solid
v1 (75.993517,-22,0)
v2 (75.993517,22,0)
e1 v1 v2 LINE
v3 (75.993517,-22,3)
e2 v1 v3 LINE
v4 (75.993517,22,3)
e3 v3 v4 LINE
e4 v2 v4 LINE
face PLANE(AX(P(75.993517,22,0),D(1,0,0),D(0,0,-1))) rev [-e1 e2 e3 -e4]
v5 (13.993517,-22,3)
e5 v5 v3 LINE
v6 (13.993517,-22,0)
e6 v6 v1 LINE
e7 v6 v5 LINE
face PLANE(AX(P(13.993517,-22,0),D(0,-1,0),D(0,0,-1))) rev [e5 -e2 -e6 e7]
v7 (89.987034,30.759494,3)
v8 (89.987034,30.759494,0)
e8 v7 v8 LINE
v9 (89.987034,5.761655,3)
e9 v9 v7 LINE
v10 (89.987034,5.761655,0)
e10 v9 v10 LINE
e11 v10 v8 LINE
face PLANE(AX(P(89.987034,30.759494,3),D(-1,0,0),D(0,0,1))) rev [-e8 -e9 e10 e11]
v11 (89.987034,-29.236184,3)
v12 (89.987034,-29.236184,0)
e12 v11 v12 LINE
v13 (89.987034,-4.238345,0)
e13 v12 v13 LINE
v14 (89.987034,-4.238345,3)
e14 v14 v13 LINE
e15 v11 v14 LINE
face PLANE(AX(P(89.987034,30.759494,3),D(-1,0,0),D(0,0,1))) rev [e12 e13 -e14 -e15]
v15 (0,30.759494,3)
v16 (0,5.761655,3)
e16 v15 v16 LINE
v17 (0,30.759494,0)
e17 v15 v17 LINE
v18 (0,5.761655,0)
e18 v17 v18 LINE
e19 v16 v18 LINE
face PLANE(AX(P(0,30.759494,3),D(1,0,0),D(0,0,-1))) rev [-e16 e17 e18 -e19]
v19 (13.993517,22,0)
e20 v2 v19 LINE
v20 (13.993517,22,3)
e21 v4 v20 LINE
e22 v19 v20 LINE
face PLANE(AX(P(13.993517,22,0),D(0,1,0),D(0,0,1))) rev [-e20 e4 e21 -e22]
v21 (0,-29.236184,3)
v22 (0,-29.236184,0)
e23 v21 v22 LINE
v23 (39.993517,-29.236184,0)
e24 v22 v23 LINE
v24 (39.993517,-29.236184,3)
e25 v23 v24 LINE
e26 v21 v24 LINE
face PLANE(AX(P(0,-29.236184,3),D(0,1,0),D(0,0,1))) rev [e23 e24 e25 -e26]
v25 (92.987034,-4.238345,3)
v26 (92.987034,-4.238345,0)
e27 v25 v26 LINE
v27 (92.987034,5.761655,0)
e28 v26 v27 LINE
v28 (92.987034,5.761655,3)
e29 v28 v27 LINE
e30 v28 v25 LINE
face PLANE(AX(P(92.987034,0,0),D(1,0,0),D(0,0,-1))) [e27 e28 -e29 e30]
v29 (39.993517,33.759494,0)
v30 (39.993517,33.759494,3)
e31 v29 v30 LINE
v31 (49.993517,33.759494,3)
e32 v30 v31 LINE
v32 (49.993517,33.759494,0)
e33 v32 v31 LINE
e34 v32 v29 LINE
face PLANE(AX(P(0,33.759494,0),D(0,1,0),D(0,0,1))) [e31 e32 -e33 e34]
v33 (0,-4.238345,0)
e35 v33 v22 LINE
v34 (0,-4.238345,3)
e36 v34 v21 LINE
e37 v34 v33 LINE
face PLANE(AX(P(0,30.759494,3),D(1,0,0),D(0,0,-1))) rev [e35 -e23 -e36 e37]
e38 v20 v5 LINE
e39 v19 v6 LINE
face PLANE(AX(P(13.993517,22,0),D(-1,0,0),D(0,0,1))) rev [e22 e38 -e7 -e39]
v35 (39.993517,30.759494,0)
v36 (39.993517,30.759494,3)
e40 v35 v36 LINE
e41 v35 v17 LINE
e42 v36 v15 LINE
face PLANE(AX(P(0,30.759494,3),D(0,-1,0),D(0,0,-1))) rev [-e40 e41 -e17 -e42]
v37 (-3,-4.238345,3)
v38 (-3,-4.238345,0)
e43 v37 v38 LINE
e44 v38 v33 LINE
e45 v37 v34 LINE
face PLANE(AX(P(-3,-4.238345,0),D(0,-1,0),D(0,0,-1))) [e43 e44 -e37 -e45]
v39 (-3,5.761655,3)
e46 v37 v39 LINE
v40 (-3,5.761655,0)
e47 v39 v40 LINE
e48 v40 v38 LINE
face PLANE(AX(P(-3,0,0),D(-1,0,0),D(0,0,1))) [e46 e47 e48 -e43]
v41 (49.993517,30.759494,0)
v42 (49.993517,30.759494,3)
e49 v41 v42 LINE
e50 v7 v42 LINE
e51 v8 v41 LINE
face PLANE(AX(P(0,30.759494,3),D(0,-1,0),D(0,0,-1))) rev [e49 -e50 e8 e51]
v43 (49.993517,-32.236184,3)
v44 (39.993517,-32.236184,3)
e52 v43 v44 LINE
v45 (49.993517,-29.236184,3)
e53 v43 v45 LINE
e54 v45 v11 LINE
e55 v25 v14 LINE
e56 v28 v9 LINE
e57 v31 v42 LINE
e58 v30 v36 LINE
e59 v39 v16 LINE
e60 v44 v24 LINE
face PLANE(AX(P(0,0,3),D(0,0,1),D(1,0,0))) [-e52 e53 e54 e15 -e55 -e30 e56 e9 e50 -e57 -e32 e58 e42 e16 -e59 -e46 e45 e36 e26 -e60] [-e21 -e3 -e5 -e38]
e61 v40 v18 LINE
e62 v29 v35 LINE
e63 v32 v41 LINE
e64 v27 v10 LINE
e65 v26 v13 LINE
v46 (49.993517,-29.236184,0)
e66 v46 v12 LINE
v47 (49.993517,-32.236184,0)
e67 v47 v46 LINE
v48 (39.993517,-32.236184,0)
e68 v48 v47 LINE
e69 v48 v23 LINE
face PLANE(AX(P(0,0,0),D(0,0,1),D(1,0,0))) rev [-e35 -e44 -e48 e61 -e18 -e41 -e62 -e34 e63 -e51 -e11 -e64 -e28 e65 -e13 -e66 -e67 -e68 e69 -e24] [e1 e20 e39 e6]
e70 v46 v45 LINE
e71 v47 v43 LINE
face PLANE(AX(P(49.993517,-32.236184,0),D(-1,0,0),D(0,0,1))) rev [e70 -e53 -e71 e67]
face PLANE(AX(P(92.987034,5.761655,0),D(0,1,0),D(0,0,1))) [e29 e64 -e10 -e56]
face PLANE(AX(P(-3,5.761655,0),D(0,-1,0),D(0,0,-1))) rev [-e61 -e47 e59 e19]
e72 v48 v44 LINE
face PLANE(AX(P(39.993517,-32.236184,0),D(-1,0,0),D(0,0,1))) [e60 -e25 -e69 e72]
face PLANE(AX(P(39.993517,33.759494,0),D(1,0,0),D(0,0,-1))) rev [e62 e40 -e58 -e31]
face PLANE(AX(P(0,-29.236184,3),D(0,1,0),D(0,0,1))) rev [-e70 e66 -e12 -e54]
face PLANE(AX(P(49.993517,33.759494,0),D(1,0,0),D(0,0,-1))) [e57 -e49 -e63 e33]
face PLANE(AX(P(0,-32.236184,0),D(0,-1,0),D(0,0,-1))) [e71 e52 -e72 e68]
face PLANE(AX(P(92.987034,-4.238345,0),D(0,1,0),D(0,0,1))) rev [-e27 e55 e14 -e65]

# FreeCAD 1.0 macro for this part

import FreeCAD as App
import Part
import Sketcher

V = App.Vector


def add_polygon(sketch, points):
    """Adds a closed chain of lines whose ends are joined by coincident constraints."""
    first, n = sketch.GeometryCount, len(points)
    for a, b in zip(points, points[1:] + points[:1]):
        sketch.addGeometry(Part.LineSegment(App.Vector(*a, 0), App.Vector(*b, 0)), False)
    for i in range(n):
        sketch.addConstraint(Sketcher.Constraint("Coincident", first + i, 2, first + (i + 1) % n, 1))

doc = App.newDocument("Part")
body = doc.addObject("PartDesign::Body", "Body")

sketch1 = body.newObject("Sketcher::SketchObject", "Sketch")
sketch1.AttachmentSupport = (doc.getObject("XY_Plane"), [""])
sketch1.MapMode = "FlatFace"
add_polygon(sketch1, [(0, 31), (0, -29), (90, -29), (90, 31)])
sketch1.addConstraint([
    Sketcher.Constraint("Vertical", 0),
    Sketcher.Constraint("Horizontal", 1),
    Sketcher.Constraint("Vertical", 2),
    Sketcher.Constraint("Horizontal", 3),
    Sketcher.Constraint("PointOnObject", 0, 2, -2),
    Sketcher.Constraint("DistanceY", 0, 2, 0, 1, 59.995678),
    Sketcher.Constraint("DistanceX", 1, 1, 1, 2, 89.987034),
    Sketcher.Constraint("DistanceY", 0, 2, -1, 1, 29.236184),
])
pad1 = body.newObject("PartDesign::Pad", "Pad")
pad1.Profile = sketch1
pad1.Length = 3

sketch2 = body.newObject("Sketcher::SketchObject", "Sketch001")
sketch2.AttachmentSupport = (doc.getObject("XY_Plane"), [""])
sketch2.MapMode = "FlatFace"
sketch2.AttachmentOffset = App.Placement(V(0, 0, 3), App.Rotation())
add_polygon(sketch2, [(14, 22), (14, -22), (76, -22), (76, 22)])
sketch2.addConstraint([
    Sketcher.Constraint("Vertical", 0),
    Sketcher.Constraint("Horizontal", 1),
    Sketcher.Constraint("Vertical", 2),
    Sketcher.Constraint("Horizontal", 3),
    Sketcher.Constraint("DistanceX", 1, 1, 1, 2, 62.0),
    Sketcher.Constraint("DistanceY", 0, 2, 0, 1, 44.0),
    Sketcher.Constraint("DistanceY", 0, 2, -1, 1, 22.0),
    Sketcher.Constraint("DistanceX", -1, 1, 0, 2, 13.993517),
])
pocket1 = body.newObject("PartDesign::Pocket", "Pocket")
pocket1.Profile = sketch2
pocket1.Length = 3

sketch3 = body.newObject("Sketcher::SketchObject", "Sketch002")
sketch3.AttachmentSupport = (doc.getObject("XZ_Plane"), [""])
sketch3.MapMode = "FlatFace"
sketch3.AttachmentOffset = App.Placement(V(0, 0, -30.759494), App.Rotation())
add_polygon(sketch3, [(50, 3), (50, 0), (40, 0), (40, 3)])
sketch3.addConstraint([
    Sketcher.Constraint("Vertical", 0),
    Sketcher.Constraint("Horizontal", 1),
    Sketcher.Constraint("Vertical", 2),
    Sketcher.Constraint("Horizontal", 3),
    Sketcher.Constraint("PointOnObject", 0, 2, -1),
    Sketcher.Constraint("DistanceX", 1, 2, 1, 1, 10.0),
    Sketcher.Constraint("DistanceY", 0, 2, 0, 1, 3.0),
    Sketcher.Constraint("DistanceX", -1, 1, 0, 2, 49.993517),
])
pad2 = body.newObject("PartDesign::Pad", "Pad001")
pad2.Profile = sketch3
pad2.Length = 3
pad2.Reversed = True

sketch4 = body.newObject("Sketcher::SketchObject", "Sketch003")
sketch4.AttachmentSupport = (doc.getObject("XZ_Plane"), [""])
sketch4.MapMode = "FlatFace"
sketch4.AttachmentOffset = App.Placement(V(0, 0, 29.236184), App.Rotation())
add_polygon(sketch4, [(50, 0), (50, 3), (40, 3), (40, 0)])
sketch4.addConstraint([
    Sketcher.Constraint("Vertical", 0),
    Sketcher.Constraint("Horizontal", 1),
    Sketcher.Constraint("Vertical", 2),
    Sketcher.Constraint("Horizontal", 3),
    Sketcher.Constraint("PointOnObject", 2, 2, -1),
    Sketcher.Constraint("DistanceX", 1, 2, 1, 1, 10.0),
    Sketcher.Constraint("DistanceY", 0, 1, 0, 2, 3.0),
    Sketcher.Constraint("DistanceX", -1, 1, 0, 2, 49.993517),
])
pad3 = body.newObject("PartDesign::Pad", "Pad002")
pad3.Profile = sketch4
pad3.Length = 3

sketch5 = body.newObject("Sketcher::SketchObject", "Sketch004")
sketch5.AttachmentSupport = (doc.getObject("YZ_Plane"), [""])
sketch5.MapMode = "FlatFace"
sketch5.AttachmentOffset = App.Placement(V(0, 0, 89.987034), App.Rotation())
add_polygon(sketch5, [(5.8, 3), (-4.2, 3), (-4.2, 0), (5.8, 0)])
sketch5.addConstraint([
    Sketcher.Constraint("Horizontal", 0),
    Sketcher.Constraint("Vertical", 1),
    Sketcher.Constraint("Horizontal", 2),
    Sketcher.Constraint("Vertical", 3),
    Sketcher.Constraint("PointOnObject", 1, 2, -1),
    Sketcher.Constraint("DistanceX", 0, 2, 0, 1, 10.0),
    Sketcher.Constraint("DistanceY", 1, 2, 1, 1, 3.0),
    Sketcher.Constraint("DistanceX", 0, 2, -1, 1, 4.238345),
])
pad4 = body.newObject("PartDesign::Pad", "Pad003")
pad4.Profile = sketch5
pad4.Length = 3

sketch6 = body.newObject("Sketcher::SketchObject", "Sketch005")
sketch6.AttachmentSupport = (doc.getObject("YZ_Plane"), [""])
sketch6.MapMode = "FlatFace"
add_polygon(sketch6, [(5.8, 0), (-4.2, 0), (-4.2, 3), (5.8, 3)])
sketch6.addConstraint([
    Sketcher.Constraint("Horizontal", 0),
    Sketcher.Constraint("Vertical", 1),
    Sketcher.Constraint("Horizontal", 2),
    Sketcher.Constraint("Vertical", 3),
    Sketcher.Constraint("PointOnObject", 0, 2, -1),
    Sketcher.Constraint("DistanceX", 0, 2, 0, 1, 10.0),
    Sketcher.Constraint("DistanceY", 1, 1, 1, 2, 3.0),
    Sketcher.Constraint("DistanceX", 0, 2, -1, 1, 4.238345),
])
pad5 = body.newObject("PartDesign::Pad", "Pad004")
pad5.Profile = sketch6
pad5.Length = 3
pad5.Reversed = True

doc.recompute()
